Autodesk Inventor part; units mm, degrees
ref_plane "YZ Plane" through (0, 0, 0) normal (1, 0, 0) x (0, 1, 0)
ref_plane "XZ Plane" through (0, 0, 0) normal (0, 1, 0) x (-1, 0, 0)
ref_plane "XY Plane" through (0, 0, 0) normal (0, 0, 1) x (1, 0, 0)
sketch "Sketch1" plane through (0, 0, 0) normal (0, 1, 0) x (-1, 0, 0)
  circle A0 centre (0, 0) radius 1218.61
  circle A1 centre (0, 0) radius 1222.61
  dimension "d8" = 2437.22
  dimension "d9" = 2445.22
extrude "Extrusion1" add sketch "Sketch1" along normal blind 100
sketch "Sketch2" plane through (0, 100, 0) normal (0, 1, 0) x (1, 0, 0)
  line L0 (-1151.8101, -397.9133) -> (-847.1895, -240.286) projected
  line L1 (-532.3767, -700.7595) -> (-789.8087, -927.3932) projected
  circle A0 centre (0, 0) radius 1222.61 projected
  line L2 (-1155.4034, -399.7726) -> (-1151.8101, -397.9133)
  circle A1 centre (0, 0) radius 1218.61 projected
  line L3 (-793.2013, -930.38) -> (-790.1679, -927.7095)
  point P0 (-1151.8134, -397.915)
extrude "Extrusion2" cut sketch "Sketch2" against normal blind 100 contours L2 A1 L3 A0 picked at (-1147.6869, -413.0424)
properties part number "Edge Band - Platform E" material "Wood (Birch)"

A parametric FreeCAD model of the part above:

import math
import FreeCAD as App
import Part
import Sketcher
from FreeCAD import Vector
Q = App.Units.Quantity

doc = App.newDocument("Part")
body = doc.addObject("PartDesign::Body", "Body")

sketch1 = body.newObject("Sketcher::SketchObject", "Sketch")
sketch1.AttachmentSupport = (doc.getObject("XZ_Plane"), [""])
sketch1.MapMode = "FlatFace"
sketch1.addGeometry([
    Part.Circle(Vector(0, 0, 0), Vector(0, 0, 1), 1223),
    Part.Circle(Vector(0, 0, 0), Vector(0, 0, 1), 1219),
], False)
sketch1.addConstraint([
    Sketcher.Constraint("Coincident", 0, 3, -1, 1),
    Sketcher.Constraint("Coincident", 1, 3, -1, 1),
    Sketcher.Constraint("Diameter", 0, Q("96.2685 in")),
    Sketcher.Constraint("Diameter", 1, 2437.22),
])
pad1 = body.newObject("PartDesign::Pad", "Pad")
pad1.Profile = sketch1
pad1.Length = Q("3.9370079 in")
pad1.Reversed = True

sketch2 = body.newObject("Sketcher::SketchObject", "Sketch001")
sketch2.AttachmentSupport = (doc.getObject("XZ_Plane"), [""])
sketch2.MapMode = "FlatFace"
sketch2.AttachmentOffset = App.Placement(Vector(0, 0, -3.9370079 * 25.4), App.Rotation())
sketch2.addGeometry([
    Part.LineSegment(Vector(-1151.8, 397.9, 0), Vector(-1155.4, 399.8, 0)),
    Part.ArcOfCircle(Part.Circle(Vector(0, 0, 0), Vector(0, 0, 1), 1222.6), math.radians(130), math.radians(161)),
    Part.LineSegment(Vector(-793.2, 930.4, 0), Vector(-790.2, 927.7, 0)),
    Part.ArcOfCircle(Part.Circle(Vector(0, 0, 0), Vector(0, 0, 1), 1218.6), math.radians(130), math.radians(161)),
], False)
sketch2.addConstraint([
    Sketcher.Constraint("Coincident", 0, 2, 1, 2),
    Sketcher.Constraint("Coincident", 1, 1, 2, 1),
    Sketcher.Constraint("Coincident", 2, 2, 3, 1),
    Sketcher.Constraint("Coincident", 3, 2, 0, 1),
    Sketcher.Constraint("Coincident", 1, 3, -1, 1),
    Sketcher.Constraint("Coincident", 3, 3, -1, 1),
    Sketcher.Constraint("Angle", 2, Q("-41.3596 deg")),
    Sketcher.Constraint("Radius", 1, 1222.61),
    Sketcher.Constraint("Radius", 3, 1218.61),
    Sketcher.Constraint("DistanceY", -1, 1, 2, 2, Q("36.524 in")),
    Sketcher.Constraint("Distance", 0, 4.0422),
    Sketcher.Constraint("DistanceX", 0, 2, -1, 1, 1155.4034),
])
pocket1 = body.newObject("PartDesign::Pocket", "Pocket")
pocket1.Profile = sketch2
pocket1.Length = Q("3.9370079 in")
pocket1.Reversed = True

doc.recompute()
